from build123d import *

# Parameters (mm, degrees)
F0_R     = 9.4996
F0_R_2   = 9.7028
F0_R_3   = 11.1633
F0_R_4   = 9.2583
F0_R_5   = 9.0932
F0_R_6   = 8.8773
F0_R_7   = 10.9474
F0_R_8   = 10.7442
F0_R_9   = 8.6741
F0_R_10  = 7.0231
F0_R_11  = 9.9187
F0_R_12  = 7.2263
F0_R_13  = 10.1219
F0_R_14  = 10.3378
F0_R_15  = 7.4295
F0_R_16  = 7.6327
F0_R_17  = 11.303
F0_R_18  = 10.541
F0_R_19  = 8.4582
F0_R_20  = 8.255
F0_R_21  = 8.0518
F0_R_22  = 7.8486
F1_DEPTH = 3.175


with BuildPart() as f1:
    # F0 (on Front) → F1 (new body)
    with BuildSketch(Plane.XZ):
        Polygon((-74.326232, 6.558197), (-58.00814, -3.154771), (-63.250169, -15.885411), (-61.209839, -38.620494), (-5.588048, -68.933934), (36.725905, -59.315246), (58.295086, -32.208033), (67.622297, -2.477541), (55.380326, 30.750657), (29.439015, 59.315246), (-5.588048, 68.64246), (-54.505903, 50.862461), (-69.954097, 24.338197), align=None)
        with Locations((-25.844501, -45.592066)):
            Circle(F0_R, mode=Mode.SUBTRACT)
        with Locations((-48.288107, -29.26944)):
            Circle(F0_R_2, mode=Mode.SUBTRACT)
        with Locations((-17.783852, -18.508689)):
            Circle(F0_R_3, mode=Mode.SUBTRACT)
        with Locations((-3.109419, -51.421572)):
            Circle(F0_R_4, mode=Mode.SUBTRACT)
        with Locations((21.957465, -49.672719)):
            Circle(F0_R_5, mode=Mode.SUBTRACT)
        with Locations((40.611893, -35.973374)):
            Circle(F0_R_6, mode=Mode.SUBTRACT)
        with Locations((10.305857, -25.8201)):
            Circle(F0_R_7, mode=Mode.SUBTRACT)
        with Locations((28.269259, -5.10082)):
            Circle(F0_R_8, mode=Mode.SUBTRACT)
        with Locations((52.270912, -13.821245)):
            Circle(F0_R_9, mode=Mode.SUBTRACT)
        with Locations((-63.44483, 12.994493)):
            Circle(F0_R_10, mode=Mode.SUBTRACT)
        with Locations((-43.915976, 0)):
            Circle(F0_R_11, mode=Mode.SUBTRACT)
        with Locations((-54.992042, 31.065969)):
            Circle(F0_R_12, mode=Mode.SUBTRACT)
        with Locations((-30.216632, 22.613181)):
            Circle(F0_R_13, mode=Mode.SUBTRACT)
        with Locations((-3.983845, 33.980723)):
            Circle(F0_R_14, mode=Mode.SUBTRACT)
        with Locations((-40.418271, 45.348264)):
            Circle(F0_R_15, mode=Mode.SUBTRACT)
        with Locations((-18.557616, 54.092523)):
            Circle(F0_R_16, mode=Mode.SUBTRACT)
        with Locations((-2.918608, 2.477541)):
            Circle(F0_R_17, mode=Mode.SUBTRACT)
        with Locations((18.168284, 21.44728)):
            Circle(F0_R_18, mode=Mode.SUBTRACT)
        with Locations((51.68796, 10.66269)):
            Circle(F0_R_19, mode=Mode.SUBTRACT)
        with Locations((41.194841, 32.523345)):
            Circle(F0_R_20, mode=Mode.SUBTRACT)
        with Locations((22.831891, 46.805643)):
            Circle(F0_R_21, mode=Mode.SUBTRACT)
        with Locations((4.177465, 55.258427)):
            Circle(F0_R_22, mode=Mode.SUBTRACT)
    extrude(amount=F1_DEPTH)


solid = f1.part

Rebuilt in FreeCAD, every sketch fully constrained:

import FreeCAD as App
import Part
import Sketcher

V = App.Vector
Q = App.Units.Quantity

doc = App.newDocument("Part")
params = doc.addObject("Spreadsheet::Sheet", "Params")
for row, (alias, value) in enumerate([
    ("sketch1_diameter", "0.89 in"),
    ("sketch1_diameter2", "0.83 in"),
    ("sketch1_diameter3", "0.65 in"),
    ("sketch1_diameter4", "0.748 in"),
    ("sketch1_diameter5", "0.764 in"),
    ("pad1_length", "0.125 in"),
], start=1):
    params.set(f"A{row}", alias)
    params.set(f"B{row}", "=" + value)
    params.setAlias(f"B{row}", alias)

body = doc.addObject("PartDesign::Body", "Body")

# Sketch on XZ plane
sketch1 = body.newObject("Sketcher::SketchObject", "Sketch")
sketch1.AttachmentSupport = (doc.getObject("XZ_Plane"), [""])
sketch1.MapMode = "FlatFace"
sketch1.addGeometry(Part.LineSegment(V(-74.326232, 6.558197, 0), V(-58.00814, -3.154771, 0)), False)
sketch1.addGeometry(Part.LineSegment(V(-58.00814, -3.154771, 0), V(-63.250169, -15.885411, 0)), False)
sketch1.addGeometry(Part.LineSegment(V(-63.250169, -15.885411, 0), V(-61.209839, -38.620494, 0)), False)
sketch1.addGeometry(Part.LineSegment(V(-61.209839, -38.620494, 0), V(-5.588048, -68.933934, 0)), False)
sketch1.addGeometry(Part.LineSegment(V(-5.588048, -68.933934, 0), V(36.725905, -59.315246, 0)), False)
sketch1.addGeometry(Part.LineSegment(V(36.725905, -59.315246, 0), V(58.295086, -32.208033, 0)), False)
sketch1.addGeometry(Part.LineSegment(V(58.295086, -32.208033, 0), V(67.622297, -2.477541, 0)), False)
sketch1.addGeometry(Part.LineSegment(V(67.622297, -2.477541, 0), V(55.380326, 30.750657, 0)), False)
sketch1.addGeometry(Part.LineSegment(V(55.380326, 30.750657, 0), V(29.439015, 59.315246, 0)), False)
sketch1.addGeometry(Part.LineSegment(V(29.439015, 59.315246, 0), V(-5.588048, 68.64246, 0)), False)
sketch1.addGeometry(Part.LineSegment(V(-5.588048, 68.64246, 0), V(-54.505903, 50.862461, 0)), False)
sketch1.addGeometry(Part.LineSegment(V(-54.505903, 50.862461, 0), V(-69.954097, 24.338197, 0)), False)
sketch1.addGeometry(Part.LineSegment(V(-69.954097, 24.338197, 0), V(-74.326232, 6.558197, 0)), False)
sketch1.addGeometry(Part.Circle(V(-25.844501, -45.592066, 0), V(0, 0, 1), 9.4996), False)
sketch1.addGeometry(Part.Circle(V(-48.288107, -29.26944, 0), V(0, 0, 1), 9.7028), False)
sketch1.addGeometry(Part.Circle(V(-43.915976, 0, 0), V(0, 0, 1), 9.9187), False)
sketch1.addGeometry(Part.Circle(V(-17.783852, -18.508689, 0), V(0, 0, 1), 11.1633), False)
sketch1.addGeometry(Part.Circle(V(-3.109419, -51.421572, 0), V(0, 0, 1), 9.2583), False)
sketch1.addGeometry(Part.Circle(V(21.957465, -49.672719, 0), V(0, 0, 1), 9.0932), False)
sketch1.addGeometry(Part.Circle(V(40.611893, -35.973374, 0), V(0, 0, 1), 8.8773), False)
sketch1.addGeometry(Part.Circle(V(10.305857, -25.8201, 0), V(0, 0, 1), 10.9474), False)
sketch1.addGeometry(Part.Circle(V(28.269259, -5.10082, 0), V(0, 0, 1), 10.7442), False)
sketch1.addGeometry(Part.Circle(V(52.270912, -13.821245, 0), V(0, 0, 1), 8.6741), False)
sketch1.addGeometry(Part.Circle(V(-63.44483, 12.994493, 0), V(0, 0, 1), 7.0231), False)
sketch1.addGeometry(Part.Circle(V(-54.992042, 31.065969, 0), V(0, 0, 1), 7.2263), False)
sketch1.addGeometry(Part.Circle(V(-30.216632, 22.613181, 0), V(0, 0, 1), 10.1219), False)
sketch1.addGeometry(Part.Circle(V(-40.418271, 45.348264, 0), V(0, 0, 1), 7.4295), False)
sketch1.addGeometry(Part.Circle(V(-18.557616, 54.092523, 0), V(0, 0, 1), 7.6327), False)
sketch1.addGeometry(Part.Circle(V(-2.918608, 2.477541, 0), V(0, 0, 1), 11.303), False)
sketch1.addGeometry(Part.Circle(V(18.168284, 21.44728, 0), V(0, 0, 1), 10.541), False)
sketch1.addGeometry(Part.Circle(V(51.68796, 10.66269, 0), V(0, 0, 1), 8.4582), False)
sketch1.addGeometry(Part.Circle(V(-3.983845, 33.980723, 0), V(0, 0, 1), 10.3378), False)
sketch1.addGeometry(Part.Circle(V(22.831891, 46.805643, 0), V(0, 0, 1), 8.0518), False)
sketch1.addGeometry(Part.Circle(V(4.177465, 55.258427, 0), V(0, 0, 1), 7.8486), False)
sketch1.addGeometry(Part.Circle(V(41.194841, 32.523345, 0), V(0, 0, 1), 8.255), False)
sketch1.addConstraint(Sketcher.Constraint("Coincident", 0, 2, 1, 1))
sketch1.addConstraint(Sketcher.Constraint("Coincident", 1, 2, 2, 1))
sketch1.addConstraint(Sketcher.Constraint("Coincident", 2, 2, 3, 1))
sketch1.addConstraint(Sketcher.Constraint("Coincident", 3, 2, 4, 1))
sketch1.addConstraint(Sketcher.Constraint("Coincident", 4, 2, 5, 1))
sketch1.addConstraint(Sketcher.Constraint("Coincident", 5, 2, 6, 1))
sketch1.addConstraint(Sketcher.Constraint("Coincident", 6, 2, 7, 1))
sketch1.addConstraint(Sketcher.Constraint("Coincident", 7, 2, 8, 1))
sketch1.addConstraint(Sketcher.Constraint("Coincident", 8, 2, 9, 1))
sketch1.addConstraint(Sketcher.Constraint("Coincident", 9, 2, 10, 1))
sketch1.addConstraint(Sketcher.Constraint("Coincident", 10, 2, 11, 1))
sketch1.addConstraint(Sketcher.Constraint("Coincident", 11, 2, 12, 1))
sketch1.addConstraint(Sketcher.Constraint("Coincident", 12, 2, 0, 1))
sketch1.addConstraint(Sketcher.Constraint("PointOnObject", 15, 3, -1))
sketch1.addConstraint(Sketcher.Constraint("Vertical", 3, 2, 9, 2))
sketch1.addConstraint(Sketcher.Constraint("Diameter", 28, Q("0.89 in")))
sketch1.addConstraint(Sketcher.Constraint("Diameter", 29, Q("0.83 in")))
sketch1.addConstraint(Sketcher.Constraint("Diameter", 34, Q("0.65 in")))
sketch1.addConstraint(Sketcher.Constraint("Diameter", 13, Q("0.748 in")))
sketch1.addConstraint(Sketcher.Constraint("Diameter", 14, Q("0.764 in")))
sketch1.addConstraint(Sketcher.Constraint("Diameter", 15, Q("0.781 in")))
sketch1.addConstraint(Sketcher.Constraint("Diameter", 16, Q("0.879 in")))
sketch1.addConstraint(Sketcher.Constraint("Diameter", 17, Q("0.729 in")))
sketch1.addConstraint(Sketcher.Constraint("Diameter", 18, Q("0.716 in")))
sketch1.addConstraint(Sketcher.Constraint("Diameter", 19, Q("0.699 in")))
sketch1.addConstraint(Sketcher.Constraint("Diameter", 20, Q("0.862 in")))
sketch1.addConstraint(Sketcher.Constraint("Diameter", 21, Q("0.846 in")))
sketch1.addConstraint(Sketcher.Constraint("Diameter", 22, Q("0.683 in")))
sketch1.addConstraint(Sketcher.Constraint("Diameter", 23, Q("0.553 in")))
sketch1.addConstraint(Sketcher.Constraint("Diameter", 24, Q("0.569 in")))
sketch1.addConstraint(Sketcher.Constraint("Diameter", 25, Q("0.797 in")))
sketch1.addConstraint(Sketcher.Constraint("Diameter", 26, Q("0.585 in")))
sketch1.addConstraint(Sketcher.Constraint("Diameter", 27, Q("0.601 in")))
sketch1.addConstraint(Sketcher.Constraint("Diameter", 30, Q("0.666 in")))
sketch1.addConstraint(Sketcher.Constraint("Diameter", 31, Q("0.814 in")))
sketch1.addConstraint(Sketcher.Constraint("Diameter", 32, Q("0.634 in")))
sketch1.addConstraint(Sketcher.Constraint("Diameter", 33, Q("0.618 in")))
sketch1.addConstraint(Sketcher.Constraint("DistanceX", 14, 3, 19, 3, Q("3.5 in")))
sketch1.addConstraint(Sketcher.Constraint("DistanceY", 12, 2, 11, 2, Q("0.7 in")))
sketch1.addConstraint(Sketcher.Constraint("DistanceX", 13, 3, -1, 1, Q("1.0175 in")))
sketch1.addConstraint(Sketcher.Constraint("DistanceY", 20, 3, -1, 1, Q("25.8201 mm")))
sketch1.addConstraint(Sketcher.Constraint("DistanceY", 18, 3, 21, 3, Q("44.571899 mm")))
sketch1.addConstraint(Sketcher.Constraint("DistanceX", 23, 3, 25, 3, Q("33.228198 mm")))
sketch1.addConstraint(Sketcher.Constraint("DistanceY", 21, 3, 29, 3, Q("26.5481 mm")))
sketch1.addConstraint(Sketcher.Constraint("DistanceY", 29, 3, 25, 3, Q("1.165901 mm")))
sketch1.addConstraint(Sketcher.Constraint("DistanceX", 21, 3, 30, 3, Q("23.418701 mm")))
sketch1.addConstraint(Sketcher.Constraint("DistanceY", 31, 3, 27, 3, Q("20.1118 mm")))
sketch1.addConstraint(Sketcher.Constraint("DistanceX", 28, 3, 32, 3, Q("25.750499 mm")))
sketch1.addConstraint(Sketcher.Constraint("DistanceY", 34, 3, 32, 3, Q("14.282298 mm")))
sketch1.addConstraint(Sketcher.Constraint("DistanceX", 2, 2, 0, 2, Q("3.201699 mm")))
sketch1.addConstraint(Sketcher.Constraint("DistanceY", 34, 3, 8, 2, Q("26.791901 mm")))
sketch1.addConstraint(Sketcher.Constraint("Distance", 4, Q("43.39343 mm")))
sketch1.addConstraint(Sketcher.Constraint("Distance", 9, Q("36.247649 mm")))
sketch1.addConstraint(Sketcher.Constraint("Distance", 10, Q("52.04887 mm")))
sketch1.addConstraint(Sketcher.Constraint("Distance", 12, Q("18.309669 mm")))
sketch1.addConstraint(Sketcher.Constraint("DistanceY", 14, 3, -1, 1, Q("29.26944 mm")))
sketch1.addConstraint(Sketcher.Constraint("DistanceX", 16, 3, -1, 1, Q("17.783852 mm")))
sketch1.addConstraint(Sketcher.Constraint("DistanceY", 16, 3, -1, 1, Q("18.508689 mm")))
sketch1.addConstraint(Sketcher.Constraint("DistanceX", 17, 3, -1, 1, Q("3.109419 mm")))
sketch1.addConstraint(Sketcher.Constraint("DistanceY", 17, 3, -1, 1, Q("51.421572 mm")))
sketch1.addConstraint(Sketcher.Constraint("DistanceY", 18, 3, -1, 1, Q("49.672719 mm")))
sketch1.addConstraint(Sketcher.Constraint("DistanceX", -1, 1, 21, 3, Q("28.269259 mm")))
sketch1.addConstraint(Sketcher.Constraint("DistanceX", 23, 3, -1, 1, Q("63.44483 mm")))
sketch1.addConstraint(Sketcher.Constraint("DistanceX", 24, 3, -1, 1, Q("54.992042 mm")))
sketch1.addConstraint(Sketcher.Constraint("DistanceY", -1, 1, 24, 3, Q("31.065969 mm")))
sketch1.addConstraint(Sketcher.Constraint("DistanceX", 26, 3, -1, 1, Q("40.418271 mm")))
sketch1.addConstraint(Sketcher.Constraint("DistanceY", -1, 1, 28, 3, Q("2.477541 mm")))
sketch1.addConstraint(Sketcher.Constraint("DistanceY", -1, 1, 30, 3, Q("10.66269 mm")))
sketch1.addConstraint(Sketcher.Constraint("DistanceX", -1, 1, 32, 3, Q("22.831891 mm")))
sketch1.addConstraint(Sketcher.Constraint("DistanceX", -1, 1, 34, 3, Q("41.194841 mm")))
sketch1.addConstraint(Sketcher.Constraint("DistanceX", 0, 2, -1, 1, Q("58.00814 mm")))
sketch1.addConstraint(Sketcher.Constraint("DistanceY", 0, 2, -1, 1, Q("3.154771 mm")))
sketch1.addConstraint(Sketcher.Constraint("DistanceX", 1, 2, -1, 1, Q("63.250169 mm")))
sketch1.addConstraint(Sketcher.Constraint("DistanceY", 1, 2, -1, 1, Q("15.885411 mm")))
sketch1.addConstraint(Sketcher.Constraint("DistanceY", 6, 2, -1, 1, Q("2.477541 mm")))
sketch1.addConstraint(Sketcher.Constraint("DistanceY", -1, 1, 9, 2, Q("68.64246 mm")))
sketch1.addConstraint(Sketcher.Constraint("DistanceY", -1, 1, 10, 2, Q("50.862461 mm")))
sketch1.addConstraint(Sketcher.Constraint("DistanceX", 14, 3, 15, 3, Q("4.372131 mm")))
sketch1.addConstraint(Sketcher.Constraint("DistanceX", 14, 3, 18, 3, Q("70.245572 mm")))
sketch1.addConstraint(Sketcher.Constraint("DistanceX", 16, 3, 20, 3, Q("28.089709 mm")))
sketch1.addConstraint(Sketcher.Constraint("DistanceX", 19, 3, 22, 3, Q("11.659019 mm")))
sketch1.addConstraint(Sketcher.Constraint("DistanceY", 19, 3, 22, 3, Q("22.152129 mm")))
sketch1.addConstraint(Sketcher.Constraint("DistanceX", 17, 3, 22, 3, Q("55.380331 mm")))
sketch1.addConstraint(Sketcher.Constraint("DistanceY", 13, 3, 23, 3, Q("58.586559 mm")))
sketch1.addConstraint(Sketcher.Constraint("DistanceY", 23, 3, 26, 3, Q("32.353771 mm")))
sketch1.addConstraint(Sketcher.Constraint("DistanceY", 26, 3, 27, 3, Q("8.744259 mm")))
sketch1.addConstraint(Sketcher.Constraint("DistanceY", 25, 3, 27, 3, Q("31.479342 mm")))
sketch1.addConstraint(Sketcher.Constraint("DistanceX", 15, 3, 27, 3, Q("25.35836 mm")))
sketch1.addConstraint(Sketcher.Constraint("DistanceX", 28, 3, 29, 3, Q("21.086892 mm")))
sketch1.addConstraint(Sketcher.Constraint("DistanceX", 27, 3, 31, 3, Q("14.573771 mm")))
sketch1.addConstraint(Sketcher.Constraint("DistanceY", 31, 3, 32, 3, Q("12.82492 mm")))
sketch1.addConstraint(Sketcher.Constraint("DistanceX", 27, 3, 33, 3, Q("22.735081 mm")))
sketch1.addConstraint(Sketcher.Constraint("DistanceY", 34, 3, 33, 3, Q("22.735082 mm")))
sketch1.addConstraint(Sketcher.Constraint("DistanceX", 3, 2, 17, 3, Q("2.478629 mm")))
sketch1.addConstraint(Sketcher.Constraint("DistanceY", 3, 2, 17, 3, Q("17.512362 mm")))
sketch1.addConstraint(Sketcher.Constraint("DistanceX", 18, 3, 4, 2, Q("14.76844 mm")))
sketch1.addConstraint(Sketcher.Constraint("DistanceY", 19, 3, 5, 2, Q("3.765341 mm")))
sketch1.addConstraint(Sketcher.Constraint("DistanceX", 4, 2, 5, 2, Q("21.569181 mm")))
sketch1.addConstraint(Sketcher.Constraint("DistanceX", 5, 2, 6, 2, Q("9.327211 mm")))
sketch1.addConstraint(Sketcher.Constraint("DistanceX", 7, 2, 6, 2, Q("12.241971 mm")))
sketch1.addConstraint(Sketcher.Constraint("DistanceY", 7, 2, 8, 2, Q("28.564589 mm")))
sketch1.addConstraint(Sketcher.Constraint("DistanceY", 11, 2, 24, 3, Q("6.727772 mm")))
sketch1.addConstraint(Sketcher.Constraint("DistanceX", 11, 2, 15, 3, Q("26.038121 mm")))
sketch1.addConstraint(Sketcher.Constraint("Distance", 2, Q("22.826453 mm")))
sketch1.addConstraint(Sketcher.Constraint("Distance", 5, Q("34.641457 mm")))
sketch1.setExpression("Constraints[15]", "Params.sketch1_diameter")
sketch1.setExpression("Constraints[16]", "Params.sketch1_diameter2")
sketch1.setExpression("Constraints[17]", "Params.sketch1_diameter3")
sketch1.setExpression("Constraints[18]", "Params.sketch1_diameter4")
sketch1.setExpression("Constraints[19]", "Params.sketch1_diameter5")
pad1 = body.newObject("PartDesign::Pad", "Pad")
pad1.Profile = sketch1
pad1.setExpression("Length", "Params.pad1_length")

doc.recompute()
